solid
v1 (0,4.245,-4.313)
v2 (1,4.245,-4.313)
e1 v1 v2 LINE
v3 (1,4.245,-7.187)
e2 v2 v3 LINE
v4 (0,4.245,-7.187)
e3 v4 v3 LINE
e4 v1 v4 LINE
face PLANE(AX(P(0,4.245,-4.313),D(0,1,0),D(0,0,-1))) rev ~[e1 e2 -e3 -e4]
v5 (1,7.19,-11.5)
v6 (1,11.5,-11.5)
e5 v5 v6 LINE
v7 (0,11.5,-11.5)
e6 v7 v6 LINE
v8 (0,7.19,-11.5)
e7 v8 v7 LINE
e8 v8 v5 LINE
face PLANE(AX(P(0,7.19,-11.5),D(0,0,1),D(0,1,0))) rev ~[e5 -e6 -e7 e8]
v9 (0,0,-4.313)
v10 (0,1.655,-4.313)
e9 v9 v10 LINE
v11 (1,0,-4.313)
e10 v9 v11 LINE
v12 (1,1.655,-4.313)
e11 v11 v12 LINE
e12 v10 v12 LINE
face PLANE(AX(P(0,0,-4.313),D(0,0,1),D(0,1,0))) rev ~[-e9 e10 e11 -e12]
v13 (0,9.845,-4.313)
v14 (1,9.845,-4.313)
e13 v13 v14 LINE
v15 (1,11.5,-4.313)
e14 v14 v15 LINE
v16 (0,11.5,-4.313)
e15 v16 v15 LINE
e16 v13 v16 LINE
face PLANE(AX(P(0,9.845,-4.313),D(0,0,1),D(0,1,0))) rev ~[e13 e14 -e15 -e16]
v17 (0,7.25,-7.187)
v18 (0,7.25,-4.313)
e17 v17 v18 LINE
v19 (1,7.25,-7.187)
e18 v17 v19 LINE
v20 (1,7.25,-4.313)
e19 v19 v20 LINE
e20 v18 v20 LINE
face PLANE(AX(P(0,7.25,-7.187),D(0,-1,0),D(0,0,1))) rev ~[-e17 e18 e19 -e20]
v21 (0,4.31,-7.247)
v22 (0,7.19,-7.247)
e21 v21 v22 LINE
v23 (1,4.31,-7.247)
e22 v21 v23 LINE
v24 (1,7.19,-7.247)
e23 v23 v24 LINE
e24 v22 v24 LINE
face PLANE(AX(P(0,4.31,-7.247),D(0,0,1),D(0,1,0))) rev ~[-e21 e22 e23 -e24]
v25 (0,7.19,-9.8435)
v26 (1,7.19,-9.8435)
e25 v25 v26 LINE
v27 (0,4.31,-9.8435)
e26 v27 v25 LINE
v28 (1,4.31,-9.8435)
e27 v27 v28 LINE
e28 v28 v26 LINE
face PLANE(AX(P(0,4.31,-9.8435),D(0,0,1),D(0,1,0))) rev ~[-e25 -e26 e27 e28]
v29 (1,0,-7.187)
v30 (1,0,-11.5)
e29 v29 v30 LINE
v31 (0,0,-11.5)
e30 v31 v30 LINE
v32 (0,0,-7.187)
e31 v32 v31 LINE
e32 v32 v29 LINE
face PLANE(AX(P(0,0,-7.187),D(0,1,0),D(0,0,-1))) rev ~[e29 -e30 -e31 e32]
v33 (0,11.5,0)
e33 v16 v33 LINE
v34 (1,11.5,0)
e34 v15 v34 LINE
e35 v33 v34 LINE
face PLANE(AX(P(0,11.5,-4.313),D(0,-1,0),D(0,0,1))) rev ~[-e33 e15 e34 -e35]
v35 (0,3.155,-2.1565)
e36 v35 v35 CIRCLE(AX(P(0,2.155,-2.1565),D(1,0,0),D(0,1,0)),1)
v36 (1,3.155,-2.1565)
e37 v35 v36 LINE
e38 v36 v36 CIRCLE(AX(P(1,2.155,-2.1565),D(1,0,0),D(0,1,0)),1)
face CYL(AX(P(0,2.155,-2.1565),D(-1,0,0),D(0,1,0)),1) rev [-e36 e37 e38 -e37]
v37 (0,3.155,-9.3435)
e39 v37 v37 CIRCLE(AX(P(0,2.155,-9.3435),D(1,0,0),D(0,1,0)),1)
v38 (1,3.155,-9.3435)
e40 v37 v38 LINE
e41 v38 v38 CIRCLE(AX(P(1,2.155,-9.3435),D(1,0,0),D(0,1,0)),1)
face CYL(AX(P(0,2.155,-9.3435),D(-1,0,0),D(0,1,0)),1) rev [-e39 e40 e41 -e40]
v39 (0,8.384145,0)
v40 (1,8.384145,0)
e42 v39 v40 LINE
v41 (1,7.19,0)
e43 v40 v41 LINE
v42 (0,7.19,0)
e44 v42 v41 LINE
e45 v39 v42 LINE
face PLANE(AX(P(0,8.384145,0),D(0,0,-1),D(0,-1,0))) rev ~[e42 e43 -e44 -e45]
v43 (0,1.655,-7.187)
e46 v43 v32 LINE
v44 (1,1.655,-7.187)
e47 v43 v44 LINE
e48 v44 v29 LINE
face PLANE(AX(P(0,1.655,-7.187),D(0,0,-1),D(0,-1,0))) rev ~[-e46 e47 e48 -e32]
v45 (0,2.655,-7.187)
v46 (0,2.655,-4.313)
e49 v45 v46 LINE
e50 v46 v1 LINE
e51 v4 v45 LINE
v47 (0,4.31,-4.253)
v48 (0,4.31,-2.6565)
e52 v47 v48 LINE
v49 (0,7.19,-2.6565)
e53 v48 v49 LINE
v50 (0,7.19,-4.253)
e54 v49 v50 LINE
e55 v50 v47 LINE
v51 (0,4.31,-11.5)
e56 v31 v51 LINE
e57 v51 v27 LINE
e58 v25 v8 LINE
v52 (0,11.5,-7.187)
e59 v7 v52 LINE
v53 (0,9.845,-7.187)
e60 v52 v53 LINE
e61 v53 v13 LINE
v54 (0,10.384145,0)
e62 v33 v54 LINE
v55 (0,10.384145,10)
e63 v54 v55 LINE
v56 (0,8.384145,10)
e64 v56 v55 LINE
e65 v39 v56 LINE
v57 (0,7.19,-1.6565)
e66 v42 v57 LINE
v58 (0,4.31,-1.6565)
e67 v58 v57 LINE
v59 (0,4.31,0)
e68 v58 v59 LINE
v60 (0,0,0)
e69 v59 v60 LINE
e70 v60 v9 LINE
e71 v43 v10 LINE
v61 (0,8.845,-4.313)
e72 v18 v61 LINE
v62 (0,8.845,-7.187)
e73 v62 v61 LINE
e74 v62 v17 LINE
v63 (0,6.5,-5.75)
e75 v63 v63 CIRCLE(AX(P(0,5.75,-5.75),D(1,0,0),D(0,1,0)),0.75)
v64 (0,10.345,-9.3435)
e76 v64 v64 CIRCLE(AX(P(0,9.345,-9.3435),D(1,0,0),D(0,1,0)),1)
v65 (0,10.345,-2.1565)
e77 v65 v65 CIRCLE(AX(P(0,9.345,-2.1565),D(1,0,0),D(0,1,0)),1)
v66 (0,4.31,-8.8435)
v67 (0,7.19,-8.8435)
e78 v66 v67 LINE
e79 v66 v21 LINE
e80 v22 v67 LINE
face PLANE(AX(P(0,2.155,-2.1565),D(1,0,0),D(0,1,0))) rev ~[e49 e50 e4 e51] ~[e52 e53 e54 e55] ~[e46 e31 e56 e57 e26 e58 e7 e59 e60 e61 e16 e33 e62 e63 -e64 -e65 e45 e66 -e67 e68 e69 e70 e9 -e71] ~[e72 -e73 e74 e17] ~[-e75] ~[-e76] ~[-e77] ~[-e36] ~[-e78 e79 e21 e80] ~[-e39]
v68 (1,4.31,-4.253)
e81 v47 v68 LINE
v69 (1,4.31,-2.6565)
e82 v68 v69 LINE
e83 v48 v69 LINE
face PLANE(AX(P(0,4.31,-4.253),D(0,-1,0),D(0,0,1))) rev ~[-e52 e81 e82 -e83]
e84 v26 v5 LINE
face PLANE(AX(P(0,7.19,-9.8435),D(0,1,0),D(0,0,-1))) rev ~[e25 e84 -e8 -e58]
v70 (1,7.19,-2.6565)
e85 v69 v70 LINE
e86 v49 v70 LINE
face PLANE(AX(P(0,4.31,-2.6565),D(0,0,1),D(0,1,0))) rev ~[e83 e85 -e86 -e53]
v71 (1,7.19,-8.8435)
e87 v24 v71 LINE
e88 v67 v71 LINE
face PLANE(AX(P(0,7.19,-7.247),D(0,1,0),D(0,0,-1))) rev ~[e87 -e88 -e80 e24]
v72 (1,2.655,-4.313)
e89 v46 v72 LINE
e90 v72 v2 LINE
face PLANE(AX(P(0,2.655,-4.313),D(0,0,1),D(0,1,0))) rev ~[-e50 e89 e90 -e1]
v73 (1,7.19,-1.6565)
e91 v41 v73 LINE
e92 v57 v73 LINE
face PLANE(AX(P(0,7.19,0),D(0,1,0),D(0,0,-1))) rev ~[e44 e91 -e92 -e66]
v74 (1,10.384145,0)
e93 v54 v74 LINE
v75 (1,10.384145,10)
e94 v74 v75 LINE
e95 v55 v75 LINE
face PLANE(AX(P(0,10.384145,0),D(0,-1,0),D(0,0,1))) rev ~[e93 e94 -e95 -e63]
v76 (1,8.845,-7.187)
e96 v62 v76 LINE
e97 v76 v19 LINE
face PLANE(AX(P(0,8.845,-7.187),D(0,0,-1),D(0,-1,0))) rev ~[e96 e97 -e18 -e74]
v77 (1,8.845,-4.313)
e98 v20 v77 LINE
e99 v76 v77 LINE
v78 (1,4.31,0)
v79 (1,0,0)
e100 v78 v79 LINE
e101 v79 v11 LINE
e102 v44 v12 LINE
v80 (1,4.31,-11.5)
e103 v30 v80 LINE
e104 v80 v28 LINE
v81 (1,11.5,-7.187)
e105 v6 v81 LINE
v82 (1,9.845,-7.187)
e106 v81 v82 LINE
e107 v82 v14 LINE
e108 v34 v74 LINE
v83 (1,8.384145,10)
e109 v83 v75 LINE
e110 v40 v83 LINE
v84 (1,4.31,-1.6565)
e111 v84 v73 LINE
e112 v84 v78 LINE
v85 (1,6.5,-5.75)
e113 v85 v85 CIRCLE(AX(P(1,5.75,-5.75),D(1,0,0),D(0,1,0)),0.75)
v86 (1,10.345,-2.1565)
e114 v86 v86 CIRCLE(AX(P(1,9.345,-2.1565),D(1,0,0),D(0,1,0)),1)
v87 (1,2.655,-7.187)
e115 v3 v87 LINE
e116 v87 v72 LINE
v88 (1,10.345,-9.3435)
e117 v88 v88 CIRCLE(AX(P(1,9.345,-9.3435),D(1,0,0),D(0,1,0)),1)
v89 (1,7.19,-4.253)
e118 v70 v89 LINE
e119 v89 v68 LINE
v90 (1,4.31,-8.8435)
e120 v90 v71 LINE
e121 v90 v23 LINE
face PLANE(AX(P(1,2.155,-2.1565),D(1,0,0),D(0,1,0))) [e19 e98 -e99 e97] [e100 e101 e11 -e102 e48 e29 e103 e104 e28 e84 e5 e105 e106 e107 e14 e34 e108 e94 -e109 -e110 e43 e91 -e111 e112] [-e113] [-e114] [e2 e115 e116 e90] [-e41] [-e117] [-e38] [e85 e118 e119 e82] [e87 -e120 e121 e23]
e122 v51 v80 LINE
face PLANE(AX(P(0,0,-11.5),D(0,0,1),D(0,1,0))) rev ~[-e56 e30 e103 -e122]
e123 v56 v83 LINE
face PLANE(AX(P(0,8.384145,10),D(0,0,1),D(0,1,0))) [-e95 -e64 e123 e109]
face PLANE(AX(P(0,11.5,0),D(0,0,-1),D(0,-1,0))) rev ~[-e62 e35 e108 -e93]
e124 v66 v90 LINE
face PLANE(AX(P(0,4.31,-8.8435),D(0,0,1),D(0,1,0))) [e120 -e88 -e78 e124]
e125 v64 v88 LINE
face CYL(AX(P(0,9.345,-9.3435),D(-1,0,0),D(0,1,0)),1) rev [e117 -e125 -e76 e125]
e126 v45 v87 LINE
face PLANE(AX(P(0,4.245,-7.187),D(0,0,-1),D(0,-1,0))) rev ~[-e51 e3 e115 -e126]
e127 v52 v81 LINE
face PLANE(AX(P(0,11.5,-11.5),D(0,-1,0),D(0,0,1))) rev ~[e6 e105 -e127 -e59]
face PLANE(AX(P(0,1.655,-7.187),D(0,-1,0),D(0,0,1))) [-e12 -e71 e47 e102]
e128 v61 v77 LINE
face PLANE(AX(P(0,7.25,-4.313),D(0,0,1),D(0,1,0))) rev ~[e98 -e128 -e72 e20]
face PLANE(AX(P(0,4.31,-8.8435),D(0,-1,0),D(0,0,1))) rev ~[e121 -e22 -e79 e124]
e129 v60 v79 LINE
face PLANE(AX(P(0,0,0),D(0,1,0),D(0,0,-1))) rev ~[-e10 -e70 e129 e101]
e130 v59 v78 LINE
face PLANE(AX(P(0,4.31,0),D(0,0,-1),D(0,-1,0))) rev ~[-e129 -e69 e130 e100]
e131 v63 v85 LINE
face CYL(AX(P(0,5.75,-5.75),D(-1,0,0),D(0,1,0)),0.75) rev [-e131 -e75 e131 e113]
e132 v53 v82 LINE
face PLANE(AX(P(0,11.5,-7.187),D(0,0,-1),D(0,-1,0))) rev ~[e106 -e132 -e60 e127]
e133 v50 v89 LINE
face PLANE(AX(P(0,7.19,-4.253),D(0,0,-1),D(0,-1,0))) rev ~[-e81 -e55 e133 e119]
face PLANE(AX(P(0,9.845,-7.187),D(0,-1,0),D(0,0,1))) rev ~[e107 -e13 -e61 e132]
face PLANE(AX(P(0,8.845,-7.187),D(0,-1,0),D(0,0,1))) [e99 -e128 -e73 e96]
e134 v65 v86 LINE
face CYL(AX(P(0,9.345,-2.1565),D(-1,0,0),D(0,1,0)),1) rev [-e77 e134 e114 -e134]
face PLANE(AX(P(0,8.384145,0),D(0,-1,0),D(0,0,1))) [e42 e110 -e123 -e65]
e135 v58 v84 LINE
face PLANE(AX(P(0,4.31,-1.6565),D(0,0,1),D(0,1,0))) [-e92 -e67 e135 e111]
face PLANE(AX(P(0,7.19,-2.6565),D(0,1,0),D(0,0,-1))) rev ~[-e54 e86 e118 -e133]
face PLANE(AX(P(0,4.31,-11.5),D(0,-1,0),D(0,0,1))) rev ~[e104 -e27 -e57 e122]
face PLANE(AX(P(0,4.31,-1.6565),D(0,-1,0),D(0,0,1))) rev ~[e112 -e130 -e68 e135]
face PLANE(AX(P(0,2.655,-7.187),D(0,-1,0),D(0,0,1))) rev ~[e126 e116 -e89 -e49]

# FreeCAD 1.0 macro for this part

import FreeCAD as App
import Part
import Sketcher

doc = App.newDocument("Part")
body = doc.addObject("PartDesign::Body", "Body")

sketch1 = body.newObject("Sketcher::SketchObject", "Sketch")
sketch1.AttachmentSupport = (doc.getObject("YZ_Plane"), [""])
sketch1.MapMode = "FlatFace"
sketch1.addGeometry([
    Part.LineSegment(App.Vector(4.3, 0, 0), App.Vector(0, 0, 0)),
    Part.LineSegment(App.Vector(0, 0, 0), App.Vector(0, -4.3, 0)),
    Part.LineSegment(App.Vector(0, -4.3, 0), App.Vector(1.7, -4.3, 0)),
    Part.LineSegment(App.Vector(1.7, -4.3, 0), App.Vector(1.7, -7.2, 0)),
    Part.LineSegment(App.Vector(1.7, -7.2, 0), App.Vector(0, -7.2, 0)),
    Part.LineSegment(App.Vector(0, -7.2, 0), App.Vector(0, -11.5, 0)),
    Part.LineSegment(App.Vector(0, -11.5, 0), App.Vector(4.3, -11.5, 0)),
    Part.LineSegment(App.Vector(4.3, -11.5, 0), App.Vector(4.3, -9.8, 0)),
    Part.LineSegment(App.Vector(4.3, -9.8, 0), App.Vector(7.2, -9.8, 0)),
    Part.LineSegment(App.Vector(7.2, -9.8, 0), App.Vector(7.2, -11.5, 0)),
    Part.LineSegment(App.Vector(7.2, -11.5, 0), App.Vector(11.5, -11.5, 0)),
    Part.LineSegment(App.Vector(11.5, -11.5, 0), App.Vector(11.5, -7.2, 0)),
    Part.LineSegment(App.Vector(11.5, -7.2, 0), App.Vector(9.8, -7.2, 0)),
    Part.LineSegment(App.Vector(9.8, -7.2, 0), App.Vector(9.8, -4.3, 0)),
    Part.LineSegment(App.Vector(9.8, -4.3, 0), App.Vector(11.5, -4.3, 0)),
    Part.LineSegment(App.Vector(11.5, -4.3, 0), App.Vector(11.5, 0, 0)),
    Part.LineSegment(App.Vector(11.5, 0, 0), App.Vector(10.4, 0, 0)),
    Part.LineSegment(App.Vector(10.4, 0, 0), App.Vector(10.4, 10, 0)),
    Part.LineSegment(App.Vector(10.4, 10, 0), App.Vector(8.4, 10, 0)),
    Part.LineSegment(App.Vector(8.4, 10, 0), App.Vector(8.4, 0, 0)),
    Part.LineSegment(App.Vector(8.4, 0, 0), App.Vector(7.2, 0, 0)),
    Part.LineSegment(App.Vector(7.2, 0, 0), App.Vector(7.2, -1.7, 0)),
    Part.LineSegment(App.Vector(7.2, -1.7, 0), App.Vector(4.3, -1.7, 0)),
    Part.LineSegment(App.Vector(4.3, -1.7, 0), App.Vector(4.3, 0, 0)),
    Part.LineSegment(App.Vector(7.2, -4.3, 0), App.Vector(8.8, -4.3, 0)),
    Part.LineSegment(App.Vector(8.8, -4.3, 0), App.Vector(8.8, -7.2, 0)),
    Part.LineSegment(App.Vector(8.8, -7.2, 0), App.Vector(7.2, -7.2, 0)),
    Part.LineSegment(App.Vector(7.2, -7.2, 0), App.Vector(7.2, -4.3, 0)),
    Part.Circle(App.Vector(2.2, -9.3, 0), App.Vector(0, 0, 1), 1),
    Part.Circle(App.Vector(9.3, -9.3, 0), App.Vector(0, 0, 1), 1),
    Part.LineSegment(App.Vector(7.2, -7.2, 0), App.Vector(7.2, -8.8, 0)),
    Part.LineSegment(App.Vector(7.2, -8.8, 0), App.Vector(4.3, -8.8, 0)),
    Part.LineSegment(App.Vector(4.3, -8.8, 0), App.Vector(4.3, -7.2, 0)),
    Part.LineSegment(App.Vector(4.3, -7.2, 0), App.Vector(7.2, -7.2, 0)),
    Part.LineSegment(App.Vector(4.2, -7.2, 0), App.Vector(2.7, -7.2, 0)),
    Part.LineSegment(App.Vector(2.7, -7.2, 0), App.Vector(2.7, -4.3, 0)),
    Part.LineSegment(App.Vector(2.7, -4.3, 0), App.Vector(4.2, -4.3, 0)),
    Part.LineSegment(App.Vector(4.2, -4.3, 0), App.Vector(4.2, -7.2, 0)),
    Part.Circle(App.Vector(2.2, -2.2, 0), App.Vector(0, 0, 1), 1),
    Part.Circle(App.Vector(5.8, -5.8, 0), App.Vector(0, 0, 1), 0.8),
    Part.LineSegment(App.Vector(4.3, -4.3, 0), App.Vector(4.3, -2.7, 0)),
    Part.LineSegment(App.Vector(4.3, -2.7, 0), App.Vector(7.2, -2.7, 0)),
    Part.LineSegment(App.Vector(7.2, -2.7, 0), App.Vector(7.2, -4.3, 0)),
    Part.LineSegment(App.Vector(7.2, -4.3, 0), App.Vector(4.3, -4.3, 0)),
    Part.Circle(App.Vector(9.3, -2.2, 0), App.Vector(0, 0, 1), 1),
], False)
sketch1.addConstraint([
    Sketcher.Constraint("Coincident", 0, 2, 1, 1),
    Sketcher.Constraint("Coincident", 1, 2, 2, 1),
    Sketcher.Constraint("Coincident", 2, 2, 3, 1),
    Sketcher.Constraint("Coincident", 3, 2, 4, 1),
    Sketcher.Constraint("Coincident", 4, 2, 5, 1),
    Sketcher.Constraint("Coincident", 5, 2, 6, 1),
    Sketcher.Constraint("Coincident", 6, 2, 7, 1),
    Sketcher.Constraint("Coincident", 7, 2, 8, 1),
    Sketcher.Constraint("Coincident", 8, 2, 9, 1),
    Sketcher.Constraint("Coincident", 9, 2, 10, 1),
    Sketcher.Constraint("Coincident", 10, 2, 11, 1),
    Sketcher.Constraint("Coincident", 11, 2, 12, 1),
    Sketcher.Constraint("Coincident", 12, 2, 13, 1),
    Sketcher.Constraint("Coincident", 13, 2, 14, 1),
    Sketcher.Constraint("Coincident", 14, 2, 15, 1),
    Sketcher.Constraint("Coincident", 15, 2, 16, 1),
    Sketcher.Constraint("Coincident", 16, 2, 17, 1),
    Sketcher.Constraint("Coincident", 17, 2, 18, 1),
    Sketcher.Constraint("Coincident", 18, 2, 19, 1),
    Sketcher.Constraint("Coincident", 19, 2, 20, 1),
    Sketcher.Constraint("Coincident", 20, 2, 21, 1),
    Sketcher.Constraint("Coincident", 21, 2, 22, 1),
    Sketcher.Constraint("Coincident", 22, 2, 23, 1),
    Sketcher.Constraint("Coincident", 23, 2, 0, 1),
    Sketcher.Constraint("Coincident", 24, 2, 25, 1),
    Sketcher.Constraint("Coincident", 25, 2, 26, 1),
    Sketcher.Constraint("Coincident", 26, 2, 27, 1),
    Sketcher.Constraint("Coincident", 27, 2, 24, 1),
    Sketcher.Constraint("Coincident", 30, 2, 31, 1),
    Sketcher.Constraint("Coincident", 31, 2, 32, 1),
    Sketcher.Constraint("Coincident", 32, 2, 33, 1),
    Sketcher.Constraint("Coincident", 33, 2, 30, 1),
    Sketcher.Constraint("Coincident", 34, 2, 35, 1),
    Sketcher.Constraint("Coincident", 35, 2, 36, 1),
    Sketcher.Constraint("Coincident", 36, 2, 37, 1),
    Sketcher.Constraint("Coincident", 37, 2, 34, 1),
    Sketcher.Constraint("Coincident", 40, 2, 41, 1),
    Sketcher.Constraint("Coincident", 41, 2, 42, 1),
    Sketcher.Constraint("Coincident", 42, 2, 43, 1),
    Sketcher.Constraint("Coincident", 43, 2, 40, 1),
    Sketcher.Constraint("Horizontal", 0),
    Sketcher.Constraint("Vertical", 1),
    Sketcher.Constraint("Horizontal", 2),
    Sketcher.Constraint("Vertical", 3),
    Sketcher.Constraint("Horizontal", 4),
    Sketcher.Constraint("Vertical", 5),
    Sketcher.Constraint("Horizontal", 6),
    Sketcher.Constraint("Vertical", 7),
    Sketcher.Constraint("Horizontal", 8),
    Sketcher.Constraint("Vertical", 9),
    Sketcher.Constraint("Horizontal", 10),
    Sketcher.Constraint("Vertical", 11),
    Sketcher.Constraint("Horizontal", 12),
    Sketcher.Constraint("Vertical", 13),
    Sketcher.Constraint("Horizontal", 14),
    Sketcher.Constraint("Vertical", 15),
    Sketcher.Constraint("Horizontal", 16),
    Sketcher.Constraint("Vertical", 17),
    Sketcher.Constraint("Horizontal", 18),
    Sketcher.Constraint("Vertical", 19),
    Sketcher.Constraint("Horizontal", 20),
    Sketcher.Constraint("Vertical", 21),
    Sketcher.Constraint("Horizontal", 22),
    Sketcher.Constraint("Vertical", 23),
    Sketcher.Constraint("Horizontal", 24),
    Sketcher.Constraint("Vertical", 25),
    Sketcher.Constraint("Horizontal", 26),
    Sketcher.Constraint("Vertical", 27),
    Sketcher.Constraint("Vertical", 30),
    Sketcher.Constraint("Horizontal", 31),
    Sketcher.Constraint("Vertical", 32),
    Sketcher.Constraint("Horizontal", 33),
    Sketcher.Constraint("Horizontal", 34),
    Sketcher.Constraint("Vertical", 35),
    Sketcher.Constraint("Horizontal", 36),
    Sketcher.Constraint("Vertical", 37),
    Sketcher.Constraint("Vertical", 40),
    Sketcher.Constraint("Horizontal", 41),
    Sketcher.Constraint("Vertical", 42),
    Sketcher.Constraint("Horizontal", 43),
    Sketcher.Constraint("Coincident", 0, 2, -1, 1),
    Sketcher.Constraint("Equal", 28, 29),
    Sketcher.Constraint("Equal", 29, 38),
    Sketcher.Constraint("Equal", 38, 44),
    Sketcher.Constraint("PointOnObject", 4, 2, -2),
    Sketcher.Constraint("PointOnObject", 15, 2, -1),
    Sketcher.Constraint("PointOnObject", 19, 2, -1),
    Sketcher.Constraint("Horizontal", 28, 3, 29, 3),
    Sketcher.Constraint("Horizontal", 38, 3, 44, 3),
    Sketcher.Constraint("Horizontal", 6, 2, 9, 2),
    Sketcher.Constraint("Horizontal", 4, 2, 11, 2),
    Sketcher.Constraint("Horizontal", 2, 2, 13, 2),
    Sketcher.Constraint("Horizontal", 14, 2, 24, 2),
    Sketcher.Constraint("Horizontal", 12, 2, 25, 2),
    Sketcher.Constraint("Horizontal", 26, 2, 34, 2),
    Sketcher.Constraint("Horizontal", 27, 2, 35, 2),
    Sketcher.Constraint("Vertical", 28, 3, 38, 3),
    Sketcher.Constraint("Vertical", 29, 3, 44, 3),
    Sketcher.Constraint("Vertical", 11, 2, 14, 2),
    Sketcher.Constraint("Vertical", 9, 2, 20, 2),
    Sketcher.Constraint("Vertical", 7, 2, 22, 2),
    Sketcher.Constraint("Vertical", 21, 2, 30, 2),
    Sketcher.Constraint("Vertical", 23, 2, 31, 2),
    Sketcher.Constraint("Vertical", 32, 2, 40, 2),
    Sketcher.Constraint("Vertical", 33, 2, 41, 2),
    Sketcher.Constraint("Equal", 6, 10),
    Sketcher.Constraint("Equal", 4, 12),
    Sketcher.Constraint("Equal", 1, 5),
    Sketcher.Constraint("Equal", 9, 21),
    Sketcher.Constraint("Equal", 32, 40),
    Sketcher.Constraint("Diameter", 28, 2.0),
    Sketcher.Constraint("Diameter", 39, 1.5),
    Sketcher.Constraint("DistanceX", 18, 2, 18, 1, 2.0),
    Sketcher.Constraint("DistanceY", 17, 1, 17, 2, 10.0),
    Sketcher.Constraint("DistanceX", 24, 2, 13, 2, 1.0),
    Sketcher.Constraint("DistanceY", 8, 2, 30, 2, 1.0),
    Sketcher.Constraint("DistanceX", 3, 2, 34, 2, 1.0),
    Sketcher.Constraint("DistanceY", 40, 2, 22, 2, 1.0),
    Sketcher.Constraint("DistanceX", 0, 2, 0, 1, 4.31),
    Sketcher.Constraint("DistanceX", 8, 1, 8, 2, 2.88),
    Sketcher.Constraint("DistanceX", 34, 2, 34, 1, 1.59),
    Sketcher.Constraint("DistanceY", 5, 2, -1, 1, 11.5),
    Sketcher.Constraint("DistanceX", 2, 2, 38, 3, 0.5),
    Sketcher.Constraint("DistanceY", 7, 2, 28, 3, 0.5),
    Sketcher.Constraint("DistanceX", 29, 3, 12, 2, 0.5),
    Sketcher.Constraint("DistanceY", 44, 3, 21, 2, 0.5),
    Sketcher.Constraint("DistanceX", 39, 3, 26, 2, 1.5),
    Sketcher.Constraint("DistanceX", 2, 1, 2, 2, 1.655),
    Sketcher.Constraint("DistanceX", 24, 1, 24, 2, 1.595),
    Sketcher.Constraint("DistanceY", 1, 2, 1, 1, 4.313),
    Sketcher.Constraint("DistanceY", 39, 3, -1, 1, 5.75),
    Sketcher.Constraint("DistanceY", 32, 2, 3, 2, 0.06),
    Sketcher.Constraint("DistanceY", 7, 1, 7, 2, 1.6565),
    Sketcher.Constraint("DistanceX", 16, 2, 16, 1, 1.115855),
])
pad1 = body.newObject("PartDesign::Pad", "Pad")
pad1.Profile = sketch1
pad1.Length = 1

doc.recompute()
